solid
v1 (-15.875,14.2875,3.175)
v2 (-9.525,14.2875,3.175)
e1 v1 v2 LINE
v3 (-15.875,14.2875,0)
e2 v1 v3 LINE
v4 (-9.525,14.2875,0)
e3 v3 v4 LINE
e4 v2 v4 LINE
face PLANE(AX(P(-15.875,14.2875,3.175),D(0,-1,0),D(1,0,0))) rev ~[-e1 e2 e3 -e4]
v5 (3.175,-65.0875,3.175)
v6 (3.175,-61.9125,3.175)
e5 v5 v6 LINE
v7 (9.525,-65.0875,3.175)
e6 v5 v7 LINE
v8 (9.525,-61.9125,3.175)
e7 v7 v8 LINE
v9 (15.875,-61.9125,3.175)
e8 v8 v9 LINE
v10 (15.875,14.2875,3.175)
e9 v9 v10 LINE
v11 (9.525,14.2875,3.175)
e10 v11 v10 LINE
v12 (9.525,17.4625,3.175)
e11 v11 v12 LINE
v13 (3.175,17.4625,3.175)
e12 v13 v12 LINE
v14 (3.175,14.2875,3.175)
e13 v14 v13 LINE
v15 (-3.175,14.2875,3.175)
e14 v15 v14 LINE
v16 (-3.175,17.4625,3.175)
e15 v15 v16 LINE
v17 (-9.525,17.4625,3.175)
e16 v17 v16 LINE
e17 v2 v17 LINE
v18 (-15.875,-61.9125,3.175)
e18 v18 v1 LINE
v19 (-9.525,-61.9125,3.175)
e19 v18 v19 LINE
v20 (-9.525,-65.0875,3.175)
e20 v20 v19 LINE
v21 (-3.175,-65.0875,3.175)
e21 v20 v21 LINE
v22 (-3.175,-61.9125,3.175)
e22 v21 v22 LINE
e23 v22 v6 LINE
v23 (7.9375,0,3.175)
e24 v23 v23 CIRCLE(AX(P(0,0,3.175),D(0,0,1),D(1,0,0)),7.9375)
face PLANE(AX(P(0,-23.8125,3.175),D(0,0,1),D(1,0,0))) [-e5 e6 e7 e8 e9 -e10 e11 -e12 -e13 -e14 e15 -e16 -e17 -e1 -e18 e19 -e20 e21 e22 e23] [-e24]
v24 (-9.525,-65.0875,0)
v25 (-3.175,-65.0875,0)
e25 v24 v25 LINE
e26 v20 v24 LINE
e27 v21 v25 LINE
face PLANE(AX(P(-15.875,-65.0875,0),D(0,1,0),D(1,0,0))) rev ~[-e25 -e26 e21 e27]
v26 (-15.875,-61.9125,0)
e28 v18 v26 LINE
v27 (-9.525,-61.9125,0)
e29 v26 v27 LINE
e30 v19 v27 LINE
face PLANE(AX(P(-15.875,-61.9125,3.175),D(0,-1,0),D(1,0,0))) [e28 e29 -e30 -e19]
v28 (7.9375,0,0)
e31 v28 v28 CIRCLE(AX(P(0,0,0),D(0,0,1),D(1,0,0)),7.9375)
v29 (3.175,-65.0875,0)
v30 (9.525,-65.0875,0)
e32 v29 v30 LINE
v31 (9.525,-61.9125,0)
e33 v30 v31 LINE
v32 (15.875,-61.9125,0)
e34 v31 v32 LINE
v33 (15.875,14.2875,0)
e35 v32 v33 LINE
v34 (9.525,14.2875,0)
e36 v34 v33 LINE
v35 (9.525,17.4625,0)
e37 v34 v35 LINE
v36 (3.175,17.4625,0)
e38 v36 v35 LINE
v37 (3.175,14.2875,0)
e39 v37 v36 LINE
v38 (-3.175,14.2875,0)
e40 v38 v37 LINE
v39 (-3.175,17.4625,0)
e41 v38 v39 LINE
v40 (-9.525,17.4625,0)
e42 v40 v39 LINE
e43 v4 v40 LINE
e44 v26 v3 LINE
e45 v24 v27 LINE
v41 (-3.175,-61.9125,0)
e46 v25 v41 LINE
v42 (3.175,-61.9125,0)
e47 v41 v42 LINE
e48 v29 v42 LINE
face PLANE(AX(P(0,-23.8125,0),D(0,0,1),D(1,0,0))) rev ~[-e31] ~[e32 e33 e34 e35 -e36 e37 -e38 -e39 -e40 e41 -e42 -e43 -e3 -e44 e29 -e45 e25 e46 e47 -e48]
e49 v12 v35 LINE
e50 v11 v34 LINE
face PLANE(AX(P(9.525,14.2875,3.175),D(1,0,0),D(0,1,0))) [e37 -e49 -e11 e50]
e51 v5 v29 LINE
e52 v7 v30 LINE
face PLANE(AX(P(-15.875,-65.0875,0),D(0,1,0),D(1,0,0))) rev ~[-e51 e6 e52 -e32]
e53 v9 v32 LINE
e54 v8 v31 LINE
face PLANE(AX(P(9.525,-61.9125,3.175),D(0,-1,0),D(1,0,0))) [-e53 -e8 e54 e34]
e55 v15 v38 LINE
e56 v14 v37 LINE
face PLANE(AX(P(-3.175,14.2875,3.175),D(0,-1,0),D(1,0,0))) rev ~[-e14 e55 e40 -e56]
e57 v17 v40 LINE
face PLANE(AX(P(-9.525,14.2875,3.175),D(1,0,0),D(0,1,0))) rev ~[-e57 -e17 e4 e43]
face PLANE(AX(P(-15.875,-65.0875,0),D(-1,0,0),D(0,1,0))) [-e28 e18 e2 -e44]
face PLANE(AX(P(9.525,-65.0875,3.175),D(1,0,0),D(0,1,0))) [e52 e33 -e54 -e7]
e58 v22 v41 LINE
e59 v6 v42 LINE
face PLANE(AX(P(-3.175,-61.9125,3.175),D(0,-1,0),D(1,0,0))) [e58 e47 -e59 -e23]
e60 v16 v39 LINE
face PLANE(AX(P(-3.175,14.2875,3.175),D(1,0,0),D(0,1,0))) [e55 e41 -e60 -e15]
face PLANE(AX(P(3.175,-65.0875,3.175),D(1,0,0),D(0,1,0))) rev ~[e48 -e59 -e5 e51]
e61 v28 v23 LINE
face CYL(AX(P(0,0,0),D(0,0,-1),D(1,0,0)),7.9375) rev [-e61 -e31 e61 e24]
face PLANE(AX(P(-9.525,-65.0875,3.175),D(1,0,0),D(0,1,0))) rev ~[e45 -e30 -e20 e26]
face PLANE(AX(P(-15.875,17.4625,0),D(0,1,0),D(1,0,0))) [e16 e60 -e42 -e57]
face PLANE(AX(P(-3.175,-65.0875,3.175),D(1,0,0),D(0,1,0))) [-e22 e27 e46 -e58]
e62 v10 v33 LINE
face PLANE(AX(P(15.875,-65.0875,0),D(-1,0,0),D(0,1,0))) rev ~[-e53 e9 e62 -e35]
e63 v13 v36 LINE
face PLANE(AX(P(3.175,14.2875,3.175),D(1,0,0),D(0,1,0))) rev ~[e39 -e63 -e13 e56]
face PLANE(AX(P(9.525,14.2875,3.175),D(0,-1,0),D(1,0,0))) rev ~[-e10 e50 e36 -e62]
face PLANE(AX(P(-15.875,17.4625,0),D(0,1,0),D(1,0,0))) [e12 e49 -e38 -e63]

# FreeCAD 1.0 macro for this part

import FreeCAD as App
import Part
import Sketcher

V = App.Vector
Q = App.Units.Quantity


def add_polygon(sketch, points):
    """Adds a closed chain of lines whose ends are joined by coincident constraints."""
    first, n = sketch.GeometryCount, len(points)
    for a, b in zip(points, points[1:] + points[:1]):
        sketch.addGeometry(Part.LineSegment(App.Vector(*a, 0), App.Vector(*b, 0)), False)
    for i in range(n):
        sketch.addConstraint(Sketcher.Constraint("Coincident", first + i, 2, first + (i + 1) % n, 1))

doc = App.newDocument("Part")
body = doc.addObject("PartDesign::Body", "Body")

sketch1 = body.newObject("Sketcher::SketchObject", "Sketch")
sketch1.AttachmentSupport = (doc.getObject("XY_Plane"), [""])
sketch1.MapMode = "FlatFace"
add_polygon(sketch1, [(-16, 17), (-16, -65), (16, -65), (16, 17)])
sketch1.addGeometry(Part.Circle(V(0, 0, 0), V(0, 0, 1), 8), False)
sketch1.addConstraint([
    Sketcher.Constraint("Vertical", 0),
    Sketcher.Constraint("Horizontal", 1),
    Sketcher.Constraint("Vertical", 2),
    Sketcher.Constraint("Horizontal", 3),
    Sketcher.Constraint("Coincident", 4, 3, -1, 1),
    Sketcher.Constraint("Diameter", 4, Q("0.625 in")),
    Sketcher.Constraint("DistanceX", 1, 1, 1, 2, Q("1.25 in")),
    Sketcher.Constraint("DistanceY", 0, 2, 0, 1, Q("3.25 in")),
    Sketcher.Constraint("DistanceX", 0, 2, -1, 1, Q("0.625 in")),
    Sketcher.Constraint("DistanceY", 0, 2, -1, 1, Q("2.5625 in")),
])
pad1 = body.newObject("PartDesign::Pad", "Pad")
pad1.Profile = sketch1
pad1.Length = Q("0.125 in")

sketch2 = body.newObject("Sketcher::SketchObject", "Sketch001")
sketch2.AttachmentSupport = (doc.getObject("XY_Plane"), [""])
sketch2.MapMode = "FlatFace"
sketch2.AttachmentOffset = App.Placement(V(0, 0, 0.125 * 25.4), App.Rotation())
add_polygon(sketch2, [(-15.9, 17.5), (-15.9, 14.3), (-9.5, 14.3), (-9.5, 17.5)])
add_polygon(sketch2, [(-3.2, 17.5), (-3.2, 14.3), (3.2, 14.3), (3.2, 17.5)])
add_polygon(sketch2, [(9.5, 17.5), (9.5, 14.3), (15.9, 14.3), (15.9, 17.5)])
add_polygon(sketch2, [(-15.9, -61.9), (-15.9, -65.1), (-9.5, -65.1), (-9.5, -61.9)])
add_polygon(sketch2, [(9.5, -61.9), (9.5, -65.1), (15.9, -65.1), (15.9, -61.9)])
add_polygon(sketch2, [(-3.2, -61.9), (-3.2, -65.1), (3.2, -65.1), (3.2, -61.9)])
sketch2.addConstraint([
    Sketcher.Constraint("Vertical", 0),
    Sketcher.Constraint("Horizontal", 1),
    Sketcher.Constraint("Vertical", 2),
    Sketcher.Constraint("Horizontal", 3),
    Sketcher.Constraint("Vertical", 4),
    Sketcher.Constraint("Horizontal", 5),
    Sketcher.Constraint("Vertical", 6),
    Sketcher.Constraint("Horizontal", 7),
    Sketcher.Constraint("Vertical", 8),
    Sketcher.Constraint("Horizontal", 9),
    Sketcher.Constraint("Vertical", 10),
    Sketcher.Constraint("Horizontal", 11),
    Sketcher.Constraint("Vertical", 12),
    Sketcher.Constraint("Horizontal", 13),
    Sketcher.Constraint("Vertical", 14),
    Sketcher.Constraint("Horizontal", 15),
    Sketcher.Constraint("Vertical", 16),
    Sketcher.Constraint("Horizontal", 17),
    Sketcher.Constraint("Vertical", 18),
    Sketcher.Constraint("Horizontal", 19),
    Sketcher.Constraint("Vertical", 20),
    Sketcher.Constraint("Horizontal", 21),
    Sketcher.Constraint("Vertical", 22),
    Sketcher.Constraint("Horizontal", 23),
    Sketcher.Constraint("Symmetric", 1, 2, 8, 2, -2),
    Sketcher.Constraint("Symmetric", 3, 2, 10, 2, -2),
    Sketcher.Constraint("Symmetric", 13, 2, 16, 2, -2),
    Sketcher.Constraint("Symmetric", 15, 2, 18, 2, -2),
    Sketcher.Constraint("Horizontal", 1, 2, 4, 2),
    Sketcher.Constraint("Horizontal", 3, 2, 6, 2),
    Sketcher.Constraint("Horizontal", 17, 2, 20, 2),
    Sketcher.Constraint("Horizontal", 19, 2, 22, 2),
    Sketcher.Constraint("Vertical", 3, 2, 12, 2),
    Sketcher.Constraint("Vertical", 2, 2, 13, 2),
    Sketcher.Constraint("Vertical", 7, 2, 20, 2),
    Sketcher.Constraint("Vertical", 6, 2, 21, 2),
    Sketcher.Constraint("Equal", 3, 5),
    Sketcher.Constraint("Equal", 10, 12),
    Sketcher.Constraint("DistanceY", 14, 2, 1, 2, Q("3 in")),
    Sketcher.Constraint("DistanceX", 12, 2, 16, 2, Q("1 in")),
    Sketcher.Constraint("DistanceX", 1, 1, 1, 2, Q("0.25 in")),
    Sketcher.Constraint("DistanceX", 0, 2, 4, 2, Q("0.5 in")),
    Sketcher.Constraint("DistanceY", 0, 2, 0, 1, Q("0.125 in")),
    Sketcher.Constraint("DistanceY", -1, 1, 0, 2, Q("0.5625 in")),
])
pocket1 = body.newObject("PartDesign::Pocket", "Pocket")
pocket1.Profile = sketch2
pocket1.Type = "ThroughAll"

doc.recompute()
